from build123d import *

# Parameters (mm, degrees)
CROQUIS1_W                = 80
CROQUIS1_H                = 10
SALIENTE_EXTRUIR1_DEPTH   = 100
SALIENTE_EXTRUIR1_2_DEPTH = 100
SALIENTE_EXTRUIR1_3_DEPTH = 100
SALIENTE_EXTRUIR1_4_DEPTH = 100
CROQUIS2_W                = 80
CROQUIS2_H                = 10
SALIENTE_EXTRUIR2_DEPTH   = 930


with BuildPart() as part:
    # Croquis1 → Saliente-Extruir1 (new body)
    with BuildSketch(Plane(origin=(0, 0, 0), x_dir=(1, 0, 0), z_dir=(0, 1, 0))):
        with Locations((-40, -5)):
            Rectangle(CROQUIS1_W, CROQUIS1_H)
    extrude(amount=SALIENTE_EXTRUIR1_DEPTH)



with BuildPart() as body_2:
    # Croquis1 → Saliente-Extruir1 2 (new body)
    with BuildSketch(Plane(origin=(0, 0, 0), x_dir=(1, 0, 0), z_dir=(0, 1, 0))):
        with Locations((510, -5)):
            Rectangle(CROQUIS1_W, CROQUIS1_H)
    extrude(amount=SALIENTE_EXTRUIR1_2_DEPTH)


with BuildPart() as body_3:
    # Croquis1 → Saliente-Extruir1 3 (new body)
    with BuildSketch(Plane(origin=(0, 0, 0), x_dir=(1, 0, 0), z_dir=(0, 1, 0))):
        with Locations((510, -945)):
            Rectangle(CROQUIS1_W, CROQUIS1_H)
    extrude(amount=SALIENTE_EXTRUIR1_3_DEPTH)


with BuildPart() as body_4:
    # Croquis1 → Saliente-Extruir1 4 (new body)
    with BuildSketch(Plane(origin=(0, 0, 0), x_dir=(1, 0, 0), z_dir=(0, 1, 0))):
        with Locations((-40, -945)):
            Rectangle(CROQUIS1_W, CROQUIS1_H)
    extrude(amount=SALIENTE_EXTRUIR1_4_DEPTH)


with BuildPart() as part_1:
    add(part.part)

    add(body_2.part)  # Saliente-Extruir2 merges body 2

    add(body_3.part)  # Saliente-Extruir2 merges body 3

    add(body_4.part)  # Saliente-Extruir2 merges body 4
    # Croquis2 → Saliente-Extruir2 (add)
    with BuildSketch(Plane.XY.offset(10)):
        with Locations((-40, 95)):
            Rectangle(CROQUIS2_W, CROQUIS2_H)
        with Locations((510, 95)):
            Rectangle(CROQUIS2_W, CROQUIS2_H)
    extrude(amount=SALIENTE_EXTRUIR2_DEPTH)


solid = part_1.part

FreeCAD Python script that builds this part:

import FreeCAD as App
import Part
import Sketcher
from FreeCAD import Vector
Q = App.Units.Quantity

doc = App.newDocument("Part")
params = doc.addObject("Spreadsheet::Sheet", "Params")
for row, (alias, value) in enumerate([
    ("sketch1_width", "80 mm"),
    ("sketch1_height", "10 mm"),
    ("pad1_length", "100 mm"),
    ("sketch2_width", "80 mm"),
    ("sketch2_height", "10 mm"),
    ("pad2_length", "100 mm"),
    ("sketch3_width", "80 mm"),
    ("sketch3_height", "10 mm"),
    ("pad3_length", "100 mm"),
    ("sketch4_width", "80 mm"),
    ("sketch4_height", "10 mm"),
    ("pad4_length", "100 mm"),
    ("sketch5_width", "80 mm"),
    ("sketch5_height", "10 mm"),
    ("pad5_length", "930 mm"),
], start=1):
    params.set(f"A{row}", alias)
    params.set(f"B{row}", "=" + value)
    params.setAlias(f"B{row}", alias)

body = doc.addObject("PartDesign::Body", "Body")

# Sketch on XZ plane
sketch1 = body.newObject("Sketcher::SketchObject", "Sketch")
sketch1.AttachmentSupport = (doc.getObject("XZ_Plane"), [""])
sketch1.MapMode = "FlatFace"
sketch1.addGeometry(Part.LineSegment(Vector(-80, 0, 0), Vector(-80, 10, 0)), False)
sketch1.addGeometry(Part.LineSegment(Vector(-80, 10, 0), Vector(0, 10, 0)), False)
sketch1.addGeometry(Part.LineSegment(Vector(0, 10, 0), Vector(0, 0, 0)), False)
sketch1.addGeometry(Part.LineSegment(Vector(0, 0, 0), Vector(-80, 0, 0)), False)
sketch1.addConstraint(Sketcher.Constraint("Coincident", 0, 2, 1, 1))
sketch1.addConstraint(Sketcher.Constraint("Coincident", 1, 2, 2, 1))
sketch1.addConstraint(Sketcher.Constraint("Coincident", 2, 2, 3, 1))
sketch1.addConstraint(Sketcher.Constraint("Coincident", 3, 2, 0, 1))
sketch1.addConstraint(Sketcher.Constraint("Vertical", 0))
sketch1.addConstraint(Sketcher.Constraint("Horizontal", 1))
sketch1.addConstraint(Sketcher.Constraint("Vertical", 2))
sketch1.addConstraint(Sketcher.Constraint("Horizontal", 3))
sketch1.addConstraint(Sketcher.Constraint("Coincident", 2, 2, -1, 1))
sketch1.addConstraint(Sketcher.Constraint("DistanceX", 1, 1, 1, 2, Q("80 mm")))
sketch1.addConstraint(Sketcher.Constraint("DistanceY", 0, 1, 0, 2, Q("10 mm")))
sketch1.setExpression("Constraints[9]", "Params.sketch1_width")
sketch1.setExpression("Constraints[10]", "Params.sketch1_height")
pad1 = body.newObject("PartDesign::Pad", "Pad")
pad1.Profile = sketch1
pad1.setExpression("Length", "Params.pad1_length")
pad1.Reversed = True
body2 = doc.addObject("PartDesign::Body", "Body001")

# Sketch on XZ plane
sketch2 = body2.newObject("Sketcher::SketchObject", "Sketch001")
sketch2.AttachmentSupport = (doc.getObject("XZ_Plane001"), [""])
sketch2.MapMode = "FlatFace"
sketch2.addGeometry(Part.LineSegment(Vector(470, 0, 0), Vector(470, 10, 0)), False)
sketch2.addGeometry(Part.LineSegment(Vector(470, 10, 0), Vector(550, 10, 0)), False)
sketch2.addGeometry(Part.LineSegment(Vector(550, 10, 0), Vector(550, 0, 0)), False)
sketch2.addGeometry(Part.LineSegment(Vector(550, 0, 0), Vector(470, 0, 0)), False)
sketch2.addConstraint(Sketcher.Constraint("Coincident", 0, 2, 1, 1))
sketch2.addConstraint(Sketcher.Constraint("Coincident", 1, 2, 2, 1))
sketch2.addConstraint(Sketcher.Constraint("Coincident", 2, 2, 3, 1))
sketch2.addConstraint(Sketcher.Constraint("Coincident", 3, 2, 0, 1))
sketch2.addConstraint(Sketcher.Constraint("Vertical", 0))
sketch2.addConstraint(Sketcher.Constraint("Horizontal", 1))
sketch2.addConstraint(Sketcher.Constraint("Vertical", 2))
sketch2.addConstraint(Sketcher.Constraint("Horizontal", 3))
sketch2.addConstraint(Sketcher.Constraint("PointOnObject", 2, 2, -1))
sketch2.addConstraint(Sketcher.Constraint("DistanceX", 1, 1, 1, 2, Q("80 mm")))
sketch2.addConstraint(Sketcher.Constraint("DistanceY", 0, 1, 0, 2, Q("10 mm")))
sketch2.addConstraint(Sketcher.Constraint("DistanceX", -1, 1, 0, 2, Q("470 mm")))
sketch2.setExpression("Constraints[9]", "Params.sketch2_width")
sketch2.setExpression("Constraints[10]", "Params.sketch2_height")
pad2 = body2.newObject("PartDesign::Pad", "Pad001")
pad2.Profile = sketch2
pad2.setExpression("Length", "Params.pad2_length")
pad2.Reversed = True
body3 = doc.addObject("PartDesign::Body", "Body002")

# Sketch on XZ plane
sketch3 = body3.newObject("Sketcher::SketchObject", "Sketch002")
sketch3.AttachmentSupport = (doc.getObject("XZ_Plane002"), [""])
sketch3.MapMode = "FlatFace"
sketch3.addGeometry(Part.LineSegment(Vector(470, 940, 0), Vector(470, 950, 0)), False)
sketch3.addGeometry(Part.LineSegment(Vector(470, 950, 0), Vector(550, 950, 0)), False)
sketch3.addGeometry(Part.LineSegment(Vector(550, 950, 0), Vector(550, 940, 0)), False)
sketch3.addGeometry(Part.LineSegment(Vector(550, 940, 0), Vector(470, 940, 0)), False)
sketch3.addConstraint(Sketcher.Constraint("Coincident", 0, 2, 1, 1))
sketch3.addConstraint(Sketcher.Constraint("Coincident", 1, 2, 2, 1))
sketch3.addConstraint(Sketcher.Constraint("Coincident", 2, 2, 3, 1))
sketch3.addConstraint(Sketcher.Constraint("Coincident", 3, 2, 0, 1))
sketch3.addConstraint(Sketcher.Constraint("Vertical", 0))
sketch3.addConstraint(Sketcher.Constraint("Horizontal", 1))
sketch3.addConstraint(Sketcher.Constraint("Vertical", 2))
sketch3.addConstraint(Sketcher.Constraint("Horizontal", 3))
sketch3.addConstraint(Sketcher.Constraint("DistanceX", 1, 1, 1, 2, Q("80 mm")))
sketch3.addConstraint(Sketcher.Constraint("DistanceY", 0, 1, 0, 2, Q("10 mm")))
sketch3.addConstraint(Sketcher.Constraint("DistanceX", -1, 1, 0, 2, Q("470 mm")))
sketch3.addConstraint(Sketcher.Constraint("DistanceY", -1, 1, 0, 2, Q("950 mm")))
sketch3.setExpression("Constraints[8]", "Params.sketch3_width")
sketch3.setExpression("Constraints[9]", "Params.sketch3_height")
pad3 = body3.newObject("PartDesign::Pad", "Pad002")
pad3.Profile = sketch3
pad3.setExpression("Length", "Params.pad3_length")
pad3.Reversed = True
body4 = doc.addObject("PartDesign::Body", "Body003")

# Sketch on XZ plane
sketch4 = body4.newObject("Sketcher::SketchObject", "Sketch003")
sketch4.AttachmentSupport = (doc.getObject("XZ_Plane003"), [""])
sketch4.MapMode = "FlatFace"
sketch4.addGeometry(Part.LineSegment(Vector(-80, 940, 0), Vector(-80, 950, 0)), False)
sketch4.addGeometry(Part.LineSegment(Vector(-80, 950, 0), Vector(0, 950, 0)), False)
sketch4.addGeometry(Part.LineSegment(Vector(0, 950, 0), Vector(0, 940, 0)), False)
sketch4.addGeometry(Part.LineSegment(Vector(0, 940, 0), Vector(-80, 940, 0)), False)
sketch4.addConstraint(Sketcher.Constraint("Coincident", 0, 2, 1, 1))
sketch4.addConstraint(Sketcher.Constraint("Coincident", 1, 2, 2, 1))
sketch4.addConstraint(Sketcher.Constraint("Coincident", 2, 2, 3, 1))
sketch4.addConstraint(Sketcher.Constraint("Coincident", 3, 2, 0, 1))
sketch4.addConstraint(Sketcher.Constraint("Vertical", 0))
sketch4.addConstraint(Sketcher.Constraint("Horizontal", 1))
sketch4.addConstraint(Sketcher.Constraint("Vertical", 2))
sketch4.addConstraint(Sketcher.Constraint("Horizontal", 3))
sketch4.addConstraint(Sketcher.Constraint("PointOnObject", 1, 2, -2))
sketch4.addConstraint(Sketcher.Constraint("DistanceX", 1, 1, 1, 2, Q("80 mm")))
sketch4.addConstraint(Sketcher.Constraint("DistanceY", 0, 1, 0, 2, Q("10 mm")))
sketch4.addConstraint(Sketcher.Constraint("DistanceY", -1, 1, 0, 2, Q("950 mm")))
sketch4.setExpression("Constraints[9]", "Params.sketch4_width")
sketch4.setExpression("Constraints[10]", "Params.sketch4_height")
pad4 = body4.newObject("PartDesign::Pad", "Pad003")
pad4.Profile = sketch4
pad4.setExpression("Length", "Params.pad4_length")
pad4.Reversed = True
body.AllowCompound = True
doc.recompute()

boolean = body.newObject("PartDesign::Boolean", "Boolean")
boolean.Type = "Fuse"
boolean.addObjects([body2])
doc.recompute()

boolean2 = body.newObject("PartDesign::Boolean", "Boolean001")
boolean2.Type = "Fuse"
boolean2.addObjects([body3])
doc.recompute()

boolean3 = body.newObject("PartDesign::Boolean", "Boolean002")
boolean3.Type = "Fuse"
boolean3.addObjects([body4])

# Sketch on XY plane
sketch5 = body.newObject("Sketcher::SketchObject", "Sketch004")
sketch5.AttachmentSupport = (doc.getObject("XY_Plane"), [""])
sketch5.MapMode = "FlatFace"
sketch5.AttachmentOffset = App.Placement(Vector(0, 0, 10), App.Rotation())
sketch5.addGeometry(Part.LineSegment(Vector(-80, 100, 0), Vector(-80, 90, 0)), False)
sketch5.addGeometry(Part.LineSegment(Vector(-80, 90, 0), Vector(0, 90, 0)), False)
sketch5.addGeometry(Part.LineSegment(Vector(0, 90, 0), Vector(0, 100, 0)), False)
sketch5.addGeometry(Part.LineSegment(Vector(0, 100, 0), Vector(-80, 100, 0)), False)
sketch5.addGeometry(Part.LineSegment(Vector(470, 100, 0), Vector(470, 90, 0)), False)
sketch5.addGeometry(Part.LineSegment(Vector(470, 90, 0), Vector(550, 90, 0)), False)
sketch5.addGeometry(Part.LineSegment(Vector(550, 90, 0), Vector(550, 100, 0)), False)
sketch5.addGeometry(Part.LineSegment(Vector(550, 100, 0), Vector(470, 100, 0)), False)
sketch5.addConstraint(Sketcher.Constraint("Coincident", 0, 2, 1, 1))
sketch5.addConstraint(Sketcher.Constraint("Coincident", 1, 2, 2, 1))
sketch5.addConstraint(Sketcher.Constraint("Coincident", 2, 2, 3, 1))
sketch5.addConstraint(Sketcher.Constraint("Coincident", 3, 2, 0, 1))
sketch5.addConstraint(Sketcher.Constraint("Coincident", 4, 2, 5, 1))
sketch5.addConstraint(Sketcher.Constraint("Coincident", 5, 2, 6, 1))
sketch5.addConstraint(Sketcher.Constraint("Coincident", 6, 2, 7, 1))
sketch5.addConstraint(Sketcher.Constraint("Coincident", 7, 2, 4, 1))
sketch5.addConstraint(Sketcher.Constraint("Vertical", 0))
sketch5.addConstraint(Sketcher.Constraint("Horizontal", 1))
sketch5.addConstraint(Sketcher.Constraint("Vertical", 2))
sketch5.addConstraint(Sketcher.Constraint("Horizontal", 3))
sketch5.addConstraint(Sketcher.Constraint("Vertical", 4))
sketch5.addConstraint(Sketcher.Constraint("Horizontal", 5))
sketch5.addConstraint(Sketcher.Constraint("Vertical", 6))
sketch5.addConstraint(Sketcher.Constraint("Horizontal", 7))
sketch5.addConstraint(Sketcher.Constraint("PointOnObject", 1, 2, -2))
sketch5.addConstraint(Sketcher.Constraint("Horizontal", 1, 2, 4, 2))
sketch5.addConstraint(Sketcher.Constraint("Horizontal", 3, 2, 6, 2))
sketch5.addConstraint(Sketcher.Constraint("Equal", 3, 5))
sketch5.addConstraint(Sketcher.Constraint("DistanceX", 1, 1, 1, 2, Q("80 mm")))
sketch5.addConstraint(Sketcher.Constraint("DistanceY", 0, 2, 0, 1, Q("10 mm")))
sketch5.addConstraint(Sketcher.Constraint("DistanceY", -1, 1, 0, 2, Q("90 mm")))
sketch5.addConstraint(Sketcher.Constraint("DistanceX", -1, 1, 4, 2, Q("470 mm")))
sketch5.setExpression("Constraints[20]", "Params.sketch5_width")
sketch5.setExpression("Constraints[21]", "Params.sketch5_height")
pad5 = body.newObject("PartDesign::Pad", "Pad004")
pad5.Profile = sketch5
pad5.setExpression("Length", "Params.pad5_length")

doc.recompute()
